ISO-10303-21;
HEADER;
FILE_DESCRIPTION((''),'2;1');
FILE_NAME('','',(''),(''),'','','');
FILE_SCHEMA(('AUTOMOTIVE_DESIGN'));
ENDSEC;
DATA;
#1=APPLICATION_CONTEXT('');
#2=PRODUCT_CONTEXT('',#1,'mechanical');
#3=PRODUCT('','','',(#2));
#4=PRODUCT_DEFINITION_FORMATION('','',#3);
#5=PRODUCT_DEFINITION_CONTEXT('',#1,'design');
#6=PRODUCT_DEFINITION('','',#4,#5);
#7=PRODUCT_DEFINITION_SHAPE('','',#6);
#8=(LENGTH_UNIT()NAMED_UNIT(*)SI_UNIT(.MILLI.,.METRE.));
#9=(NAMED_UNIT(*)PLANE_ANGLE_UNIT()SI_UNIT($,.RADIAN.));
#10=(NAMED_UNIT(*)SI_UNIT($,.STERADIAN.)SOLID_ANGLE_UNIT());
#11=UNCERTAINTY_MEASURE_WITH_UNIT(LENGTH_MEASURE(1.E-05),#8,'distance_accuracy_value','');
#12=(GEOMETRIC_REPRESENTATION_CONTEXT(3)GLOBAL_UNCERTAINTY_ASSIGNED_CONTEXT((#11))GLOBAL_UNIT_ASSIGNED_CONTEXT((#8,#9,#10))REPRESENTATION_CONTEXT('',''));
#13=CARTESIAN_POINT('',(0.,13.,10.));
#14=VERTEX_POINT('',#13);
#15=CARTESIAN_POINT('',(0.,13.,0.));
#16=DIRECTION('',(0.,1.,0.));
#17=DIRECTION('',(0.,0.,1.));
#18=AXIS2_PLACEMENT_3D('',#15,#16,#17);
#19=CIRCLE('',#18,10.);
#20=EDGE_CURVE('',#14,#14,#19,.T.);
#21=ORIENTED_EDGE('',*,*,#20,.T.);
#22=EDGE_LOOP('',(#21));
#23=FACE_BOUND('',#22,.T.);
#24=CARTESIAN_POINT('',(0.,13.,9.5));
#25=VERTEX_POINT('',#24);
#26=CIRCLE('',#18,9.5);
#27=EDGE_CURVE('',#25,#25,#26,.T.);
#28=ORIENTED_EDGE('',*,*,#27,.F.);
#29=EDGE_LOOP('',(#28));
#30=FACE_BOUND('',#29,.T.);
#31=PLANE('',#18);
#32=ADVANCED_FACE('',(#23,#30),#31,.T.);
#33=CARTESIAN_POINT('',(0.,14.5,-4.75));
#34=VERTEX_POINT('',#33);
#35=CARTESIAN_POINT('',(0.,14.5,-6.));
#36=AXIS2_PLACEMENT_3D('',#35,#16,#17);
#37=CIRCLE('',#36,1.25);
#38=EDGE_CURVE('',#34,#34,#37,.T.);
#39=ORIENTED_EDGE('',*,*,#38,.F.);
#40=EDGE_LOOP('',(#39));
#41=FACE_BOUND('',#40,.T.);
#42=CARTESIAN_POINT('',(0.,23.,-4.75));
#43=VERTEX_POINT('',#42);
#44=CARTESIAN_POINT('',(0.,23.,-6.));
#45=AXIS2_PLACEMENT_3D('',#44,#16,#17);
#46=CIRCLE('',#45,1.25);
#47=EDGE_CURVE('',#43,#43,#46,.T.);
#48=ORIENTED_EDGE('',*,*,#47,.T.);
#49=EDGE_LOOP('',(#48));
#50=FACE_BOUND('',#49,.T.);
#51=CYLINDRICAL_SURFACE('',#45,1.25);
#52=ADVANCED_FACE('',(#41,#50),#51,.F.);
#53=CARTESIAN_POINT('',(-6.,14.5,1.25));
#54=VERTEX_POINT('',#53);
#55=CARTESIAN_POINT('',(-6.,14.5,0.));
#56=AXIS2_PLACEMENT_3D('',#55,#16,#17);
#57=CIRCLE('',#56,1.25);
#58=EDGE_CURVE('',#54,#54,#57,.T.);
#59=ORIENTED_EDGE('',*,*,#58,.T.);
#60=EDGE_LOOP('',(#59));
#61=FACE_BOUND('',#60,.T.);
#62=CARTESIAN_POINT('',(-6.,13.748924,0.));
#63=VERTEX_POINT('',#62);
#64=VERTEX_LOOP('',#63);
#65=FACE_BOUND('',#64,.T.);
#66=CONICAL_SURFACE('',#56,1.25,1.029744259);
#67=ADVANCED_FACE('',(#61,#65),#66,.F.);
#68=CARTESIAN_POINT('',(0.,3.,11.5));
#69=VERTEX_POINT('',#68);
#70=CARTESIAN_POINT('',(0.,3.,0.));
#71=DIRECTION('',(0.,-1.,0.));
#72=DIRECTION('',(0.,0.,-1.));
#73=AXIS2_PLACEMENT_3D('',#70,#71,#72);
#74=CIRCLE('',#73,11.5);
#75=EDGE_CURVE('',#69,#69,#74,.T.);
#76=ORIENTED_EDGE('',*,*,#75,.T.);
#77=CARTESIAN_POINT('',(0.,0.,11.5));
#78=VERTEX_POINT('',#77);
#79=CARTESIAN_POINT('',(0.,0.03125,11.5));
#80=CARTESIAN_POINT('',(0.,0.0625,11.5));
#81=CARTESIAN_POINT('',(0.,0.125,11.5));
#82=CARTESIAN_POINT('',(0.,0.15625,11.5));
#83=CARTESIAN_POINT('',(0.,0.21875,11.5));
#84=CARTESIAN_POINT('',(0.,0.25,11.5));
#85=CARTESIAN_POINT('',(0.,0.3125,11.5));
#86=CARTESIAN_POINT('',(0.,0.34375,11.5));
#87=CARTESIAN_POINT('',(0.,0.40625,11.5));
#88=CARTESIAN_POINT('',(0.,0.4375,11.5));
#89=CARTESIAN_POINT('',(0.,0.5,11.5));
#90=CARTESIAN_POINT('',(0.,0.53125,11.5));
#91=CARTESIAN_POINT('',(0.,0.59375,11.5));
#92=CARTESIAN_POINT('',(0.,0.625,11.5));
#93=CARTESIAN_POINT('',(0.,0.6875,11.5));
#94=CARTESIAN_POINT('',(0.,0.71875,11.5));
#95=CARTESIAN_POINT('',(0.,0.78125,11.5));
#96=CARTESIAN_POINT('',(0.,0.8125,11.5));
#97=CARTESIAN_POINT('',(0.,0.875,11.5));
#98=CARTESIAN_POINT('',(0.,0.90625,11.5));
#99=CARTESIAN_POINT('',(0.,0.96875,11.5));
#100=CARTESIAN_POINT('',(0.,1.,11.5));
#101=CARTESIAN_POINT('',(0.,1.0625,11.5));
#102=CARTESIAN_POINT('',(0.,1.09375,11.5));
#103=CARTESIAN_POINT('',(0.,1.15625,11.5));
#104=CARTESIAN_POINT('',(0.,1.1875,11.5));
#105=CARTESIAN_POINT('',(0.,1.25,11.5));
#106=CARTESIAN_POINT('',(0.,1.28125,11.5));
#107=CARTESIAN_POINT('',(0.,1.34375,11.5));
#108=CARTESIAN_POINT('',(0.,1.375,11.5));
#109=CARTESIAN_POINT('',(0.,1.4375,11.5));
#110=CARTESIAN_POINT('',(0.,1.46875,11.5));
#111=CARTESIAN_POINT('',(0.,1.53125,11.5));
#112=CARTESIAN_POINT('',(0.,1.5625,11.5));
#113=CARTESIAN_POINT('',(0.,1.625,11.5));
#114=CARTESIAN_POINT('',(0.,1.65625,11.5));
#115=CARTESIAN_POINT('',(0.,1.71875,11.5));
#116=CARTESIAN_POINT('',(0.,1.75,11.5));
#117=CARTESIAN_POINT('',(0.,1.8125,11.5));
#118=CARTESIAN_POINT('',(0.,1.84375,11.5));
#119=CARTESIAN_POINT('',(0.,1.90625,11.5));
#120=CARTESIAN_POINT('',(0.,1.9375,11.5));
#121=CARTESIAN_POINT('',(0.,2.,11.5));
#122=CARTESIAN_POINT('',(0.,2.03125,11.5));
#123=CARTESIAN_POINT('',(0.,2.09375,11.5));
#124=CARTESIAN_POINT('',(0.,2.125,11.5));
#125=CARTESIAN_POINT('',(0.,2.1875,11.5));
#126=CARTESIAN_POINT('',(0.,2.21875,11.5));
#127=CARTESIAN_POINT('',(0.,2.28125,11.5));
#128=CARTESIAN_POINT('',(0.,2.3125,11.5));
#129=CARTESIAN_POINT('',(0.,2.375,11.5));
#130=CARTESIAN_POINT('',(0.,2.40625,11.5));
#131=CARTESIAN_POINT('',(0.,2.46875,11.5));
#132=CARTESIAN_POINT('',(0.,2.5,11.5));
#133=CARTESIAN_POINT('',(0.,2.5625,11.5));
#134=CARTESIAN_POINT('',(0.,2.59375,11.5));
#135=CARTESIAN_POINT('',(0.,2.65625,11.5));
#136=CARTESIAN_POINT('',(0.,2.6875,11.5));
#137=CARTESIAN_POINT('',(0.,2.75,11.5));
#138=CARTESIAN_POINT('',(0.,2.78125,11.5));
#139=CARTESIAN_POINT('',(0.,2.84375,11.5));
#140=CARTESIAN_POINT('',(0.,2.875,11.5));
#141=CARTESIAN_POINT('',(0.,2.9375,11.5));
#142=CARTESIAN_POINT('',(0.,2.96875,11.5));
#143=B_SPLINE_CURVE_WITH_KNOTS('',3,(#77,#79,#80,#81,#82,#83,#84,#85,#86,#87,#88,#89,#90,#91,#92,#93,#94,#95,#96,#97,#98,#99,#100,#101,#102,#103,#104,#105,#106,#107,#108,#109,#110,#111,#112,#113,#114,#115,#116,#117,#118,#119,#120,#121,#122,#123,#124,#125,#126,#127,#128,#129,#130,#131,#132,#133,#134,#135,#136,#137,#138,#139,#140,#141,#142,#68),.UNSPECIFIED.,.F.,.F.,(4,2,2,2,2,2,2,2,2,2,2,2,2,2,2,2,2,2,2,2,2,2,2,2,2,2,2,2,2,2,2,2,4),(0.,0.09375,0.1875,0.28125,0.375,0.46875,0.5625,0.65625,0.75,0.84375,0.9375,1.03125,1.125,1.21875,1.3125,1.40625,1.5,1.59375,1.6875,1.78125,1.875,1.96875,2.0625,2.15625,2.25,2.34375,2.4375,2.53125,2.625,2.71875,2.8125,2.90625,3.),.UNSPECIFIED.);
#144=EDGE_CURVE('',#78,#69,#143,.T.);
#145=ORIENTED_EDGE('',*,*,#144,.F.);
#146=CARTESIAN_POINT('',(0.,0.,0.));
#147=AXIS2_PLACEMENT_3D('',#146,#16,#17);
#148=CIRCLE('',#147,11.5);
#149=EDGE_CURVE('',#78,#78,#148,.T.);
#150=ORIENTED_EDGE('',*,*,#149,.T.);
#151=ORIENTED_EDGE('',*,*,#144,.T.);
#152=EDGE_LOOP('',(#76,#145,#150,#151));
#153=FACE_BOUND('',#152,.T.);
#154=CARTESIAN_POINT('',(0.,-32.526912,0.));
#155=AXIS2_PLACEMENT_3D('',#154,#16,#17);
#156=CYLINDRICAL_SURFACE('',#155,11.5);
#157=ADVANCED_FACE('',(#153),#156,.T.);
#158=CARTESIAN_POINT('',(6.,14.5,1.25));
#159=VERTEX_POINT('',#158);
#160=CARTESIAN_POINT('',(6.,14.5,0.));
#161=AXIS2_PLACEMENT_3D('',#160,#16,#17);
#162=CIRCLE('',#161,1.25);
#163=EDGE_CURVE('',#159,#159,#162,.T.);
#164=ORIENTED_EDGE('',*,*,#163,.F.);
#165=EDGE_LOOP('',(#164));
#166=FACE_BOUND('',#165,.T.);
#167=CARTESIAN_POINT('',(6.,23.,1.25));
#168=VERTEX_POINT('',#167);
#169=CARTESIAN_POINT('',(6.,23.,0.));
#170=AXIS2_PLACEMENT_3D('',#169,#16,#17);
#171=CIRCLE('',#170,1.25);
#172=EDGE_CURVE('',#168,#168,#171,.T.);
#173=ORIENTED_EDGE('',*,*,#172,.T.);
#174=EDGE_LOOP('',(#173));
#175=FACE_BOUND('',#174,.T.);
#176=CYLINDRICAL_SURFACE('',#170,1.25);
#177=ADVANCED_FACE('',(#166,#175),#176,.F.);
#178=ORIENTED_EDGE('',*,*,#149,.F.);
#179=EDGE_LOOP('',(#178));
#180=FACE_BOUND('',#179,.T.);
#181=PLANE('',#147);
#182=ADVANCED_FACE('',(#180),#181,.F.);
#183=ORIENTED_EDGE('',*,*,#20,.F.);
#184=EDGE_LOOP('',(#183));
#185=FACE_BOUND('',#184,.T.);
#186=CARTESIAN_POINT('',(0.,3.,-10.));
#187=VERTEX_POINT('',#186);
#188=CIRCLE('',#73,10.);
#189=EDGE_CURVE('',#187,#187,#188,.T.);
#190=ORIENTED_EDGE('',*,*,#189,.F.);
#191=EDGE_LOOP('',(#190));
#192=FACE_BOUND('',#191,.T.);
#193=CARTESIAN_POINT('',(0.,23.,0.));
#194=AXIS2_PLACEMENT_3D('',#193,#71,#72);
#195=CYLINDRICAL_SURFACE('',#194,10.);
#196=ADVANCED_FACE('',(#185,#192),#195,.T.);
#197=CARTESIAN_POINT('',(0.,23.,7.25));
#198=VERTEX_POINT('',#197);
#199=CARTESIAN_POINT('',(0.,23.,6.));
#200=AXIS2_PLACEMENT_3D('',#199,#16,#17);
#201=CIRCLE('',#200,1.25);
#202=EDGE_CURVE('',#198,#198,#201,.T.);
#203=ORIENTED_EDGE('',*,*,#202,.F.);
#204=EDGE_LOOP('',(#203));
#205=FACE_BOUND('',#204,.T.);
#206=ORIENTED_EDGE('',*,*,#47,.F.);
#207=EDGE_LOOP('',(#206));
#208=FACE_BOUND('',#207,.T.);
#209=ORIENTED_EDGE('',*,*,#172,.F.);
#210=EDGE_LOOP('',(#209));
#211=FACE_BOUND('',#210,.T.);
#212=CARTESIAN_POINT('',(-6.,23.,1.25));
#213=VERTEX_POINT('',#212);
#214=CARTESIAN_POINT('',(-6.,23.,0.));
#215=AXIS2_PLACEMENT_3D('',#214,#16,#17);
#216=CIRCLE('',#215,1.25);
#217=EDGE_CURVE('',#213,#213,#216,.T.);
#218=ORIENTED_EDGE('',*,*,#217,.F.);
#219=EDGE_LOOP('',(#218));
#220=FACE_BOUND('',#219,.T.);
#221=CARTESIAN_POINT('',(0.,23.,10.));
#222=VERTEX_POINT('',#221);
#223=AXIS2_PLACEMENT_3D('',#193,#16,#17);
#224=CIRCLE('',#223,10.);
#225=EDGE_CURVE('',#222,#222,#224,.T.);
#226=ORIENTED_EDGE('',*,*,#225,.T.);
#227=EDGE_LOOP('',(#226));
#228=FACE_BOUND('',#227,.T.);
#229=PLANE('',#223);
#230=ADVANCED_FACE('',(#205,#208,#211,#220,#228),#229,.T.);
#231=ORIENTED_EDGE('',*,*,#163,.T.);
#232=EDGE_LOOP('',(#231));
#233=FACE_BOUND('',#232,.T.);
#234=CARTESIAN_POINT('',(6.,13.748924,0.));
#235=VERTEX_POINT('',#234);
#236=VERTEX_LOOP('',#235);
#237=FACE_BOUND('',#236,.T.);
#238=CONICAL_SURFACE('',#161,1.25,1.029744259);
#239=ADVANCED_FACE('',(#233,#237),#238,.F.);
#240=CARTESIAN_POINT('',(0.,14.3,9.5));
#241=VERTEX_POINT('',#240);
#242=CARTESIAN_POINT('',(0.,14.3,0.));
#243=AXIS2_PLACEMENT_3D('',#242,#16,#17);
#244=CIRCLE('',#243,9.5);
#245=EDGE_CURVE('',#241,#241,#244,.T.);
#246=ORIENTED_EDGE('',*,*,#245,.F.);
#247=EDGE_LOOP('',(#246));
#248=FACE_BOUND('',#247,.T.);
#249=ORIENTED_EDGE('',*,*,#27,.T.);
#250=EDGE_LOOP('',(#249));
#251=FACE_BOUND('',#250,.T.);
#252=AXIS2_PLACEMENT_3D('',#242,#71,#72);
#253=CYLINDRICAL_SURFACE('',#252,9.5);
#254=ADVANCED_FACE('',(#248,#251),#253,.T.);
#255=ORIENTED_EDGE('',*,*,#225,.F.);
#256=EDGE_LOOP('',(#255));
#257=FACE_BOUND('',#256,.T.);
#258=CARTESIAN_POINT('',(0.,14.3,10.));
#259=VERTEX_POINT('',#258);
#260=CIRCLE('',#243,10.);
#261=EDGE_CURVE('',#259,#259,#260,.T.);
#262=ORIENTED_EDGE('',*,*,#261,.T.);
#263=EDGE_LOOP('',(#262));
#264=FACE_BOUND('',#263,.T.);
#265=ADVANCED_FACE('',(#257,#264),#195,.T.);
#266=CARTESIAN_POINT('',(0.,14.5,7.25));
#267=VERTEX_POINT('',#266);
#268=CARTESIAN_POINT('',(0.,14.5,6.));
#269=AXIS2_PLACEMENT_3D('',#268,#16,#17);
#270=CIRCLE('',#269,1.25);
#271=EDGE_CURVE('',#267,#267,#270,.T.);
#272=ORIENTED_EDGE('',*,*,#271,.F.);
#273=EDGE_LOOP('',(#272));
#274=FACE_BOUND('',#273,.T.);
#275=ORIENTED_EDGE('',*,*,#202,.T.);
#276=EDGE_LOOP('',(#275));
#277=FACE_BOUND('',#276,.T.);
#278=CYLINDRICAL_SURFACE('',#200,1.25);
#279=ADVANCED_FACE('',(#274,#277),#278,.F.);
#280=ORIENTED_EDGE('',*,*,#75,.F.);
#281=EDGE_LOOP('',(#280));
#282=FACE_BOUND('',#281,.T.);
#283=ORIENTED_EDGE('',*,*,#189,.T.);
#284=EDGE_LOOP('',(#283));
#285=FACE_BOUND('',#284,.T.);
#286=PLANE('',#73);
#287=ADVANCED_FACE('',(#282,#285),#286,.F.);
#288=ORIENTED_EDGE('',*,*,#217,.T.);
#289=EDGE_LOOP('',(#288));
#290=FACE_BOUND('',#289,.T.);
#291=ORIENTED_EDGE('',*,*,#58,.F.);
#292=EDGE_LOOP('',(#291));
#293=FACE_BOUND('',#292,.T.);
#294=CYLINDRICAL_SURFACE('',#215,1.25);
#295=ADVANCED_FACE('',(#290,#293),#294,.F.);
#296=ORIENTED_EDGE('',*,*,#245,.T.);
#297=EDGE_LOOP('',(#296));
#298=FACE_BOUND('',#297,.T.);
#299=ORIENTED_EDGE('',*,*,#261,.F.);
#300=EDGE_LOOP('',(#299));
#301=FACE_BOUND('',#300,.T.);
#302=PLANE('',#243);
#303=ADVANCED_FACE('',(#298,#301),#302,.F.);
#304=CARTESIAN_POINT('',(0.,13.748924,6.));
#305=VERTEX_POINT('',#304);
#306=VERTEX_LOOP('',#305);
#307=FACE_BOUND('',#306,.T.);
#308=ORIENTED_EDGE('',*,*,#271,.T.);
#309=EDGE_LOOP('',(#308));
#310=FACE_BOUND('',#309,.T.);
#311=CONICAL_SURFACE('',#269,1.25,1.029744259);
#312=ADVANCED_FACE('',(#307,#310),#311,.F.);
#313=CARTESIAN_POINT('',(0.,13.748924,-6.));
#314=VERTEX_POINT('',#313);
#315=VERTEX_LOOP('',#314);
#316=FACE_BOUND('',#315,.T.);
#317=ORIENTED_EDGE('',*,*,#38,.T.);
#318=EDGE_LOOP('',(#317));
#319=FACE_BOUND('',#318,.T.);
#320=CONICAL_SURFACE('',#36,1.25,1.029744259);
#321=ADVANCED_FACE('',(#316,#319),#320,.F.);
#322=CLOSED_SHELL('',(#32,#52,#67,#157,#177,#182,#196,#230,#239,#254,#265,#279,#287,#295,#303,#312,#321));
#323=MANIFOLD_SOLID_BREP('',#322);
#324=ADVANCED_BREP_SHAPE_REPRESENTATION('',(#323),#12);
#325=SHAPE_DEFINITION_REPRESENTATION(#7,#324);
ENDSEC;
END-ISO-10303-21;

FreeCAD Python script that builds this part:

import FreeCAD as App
import Part
import Sketcher
Q = App.Units.Quantity

doc = App.newDocument("Part")
params = doc.addObject("Spreadsheet::Sheet", "Params")
for row, (alias, value) in enumerate([
    ("sketch1_diameter", "20 mm"),
    ("pad1_length", "23 mm"),
    ("sketch2_diameter", "2.5 mm"),
    ("hole_diameter", "2.5 mm"),
    ("hole_depth", "8.5 mm"),
    ("sketch3_diameter", "23 mm"),
    ("sketch3_diameter2", "20 mm"),
    ("pad2_length", "3 mm"),
    ("sketch4_diameter", "20 mm"),
    ("sketch4_diameter2", "19 mm"),
    ("pocket1_length", "1.3 mm"),
], start=1):
    params.set(f"A{row}", alias)
    params.set(f"B{row}", "=" + value)
    params.setAlias(f"B{row}", alias)

body = doc.addObject("PartDesign::Body", "Body")

sketch1 = body.newObject("Sketcher::SketchObject", "Sketch")
sketch1.AttachmentSupport = (doc.getObject("XZ_Plane"), [""])
sketch1.MapMode = "FlatFace"
sketch1.addGeometry(Part.Circle(App.Vector(0, 0, 0), App.Vector(0, 0, 1), 10), False)
sketch1.addConstraint([
    Sketcher.Constraint("Coincident", 0, 3, -1, 1),
    Sketcher.Constraint("Diameter", 0, Q("20 mm")),
])
sketch1.setExpression("Constraints[1]", "Params.sketch1_diameter")
pad1 = body.newObject("PartDesign::Pad", "Pad")
pad1.Profile = sketch1
pad1.setExpression("Length", "Params.pad1_length")
pad1.Reversed = True

sketch2 = body.newObject("Sketcher::SketchObject", "Sketch001")
sketch2.AttachmentSupport = (doc.getObject("XZ_Plane"), [""])
sketch2.MapMode = "FlatFace"
sketch2.AttachmentOffset = App.Placement(App.Vector(0, 0, -23), App.Rotation())
sketch2.addGeometry([
    Part.Circle(App.Vector(0, -6, 0), App.Vector(0, 0, 1), 1.2),
    Part.Circle(App.Vector(6, 0, 0), App.Vector(0, 0, 1), 1.2),
    Part.Circle(App.Vector(0, 6, 0), App.Vector(0, 0, 1), 1.2),
    Part.Circle(App.Vector(-6, 0, 0), App.Vector(0, 0, 1), 1.2),
], False)
sketch2.addConstraint([
    Sketcher.Constraint("Equal", 0, 1),
    Sketcher.Constraint("Equal", 1, 2),
    Sketcher.Constraint("Equal", 2, 3),
    Sketcher.Constraint("Symmetric", 0, 3, 2, 3, -1, 1),
    Sketcher.Constraint("Symmetric", 1, 3, 3, 3, -1, 1),
    Sketcher.Constraint("PointOnObject", 0, 3, -2),
    Sketcher.Constraint("PointOnObject", 1, 3, -1),
    Sketcher.Constraint("Diameter", 0, Q("2.5 mm")),
    Sketcher.Constraint("DistanceY", 0, 3, -1, 1, Q("6 mm")),
    Sketcher.Constraint("DistanceX", -1, 1, 1, 3, Q("6 mm")),
])
sketch2.setExpression("Constraints[7]", "Params.sketch2_diameter")
doc.recompute()
hole = body.newObject("PartDesign::Hole", "Hole")
hole.Profile = sketch2
hole.ThreadType = "None"
hole.setExpression("Diameter", "Params.hole_diameter")
hole.DepthType = "Dimension"
hole.setExpression("Depth", "Params.hole_depth")
hole.DrillPoint = "Angled"
hole.DrillPointAngle = 118
hole.Reversed = True

sketch3 = body.newObject("Sketcher::SketchObject", "Sketch002")
sketch3.AttachmentSupport = (doc.getObject("XZ_Plane"), [""])
sketch3.MapMode = "FlatFace"
sketch3.addGeometry([
    Part.Circle(App.Vector(0, 0, 0), App.Vector(0, 0, 1), 12),
    Part.Circle(App.Vector(0, 0, 0), App.Vector(0, 0, 1), 10),
], False)
sketch3.addConstraint([
    Sketcher.Constraint("Coincident", 0, 3, -1, 1),
    Sketcher.Constraint("Coincident", 1, 3, -1, 1),
    Sketcher.Constraint("Diameter", 0, Q("23 mm")),
    Sketcher.Constraint("Diameter", 1, Q("20 mm")),
])
sketch3.setExpression("Constraints[2]", "Params.sketch3_diameter")
sketch3.setExpression("Constraints[3]", "Params.sketch3_diameter2")
pad2 = body.newObject("PartDesign::Pad", "Pad001")
pad2.Profile = sketch3
pad2.setExpression("Length", "Params.pad2_length")
pad2.Reversed = True

sketch4 = body.newObject("Sketcher::SketchObject", "Sketch003")
sketch4.AttachmentSupport = (doc.getObject("XZ_Plane"), [""])
sketch4.MapMode = "FlatFace"
sketch4.AttachmentOffset = App.Placement(App.Vector(0, 0, -13), App.Rotation())
sketch4.addGeometry([
    Part.Circle(App.Vector(0, 0, 0), App.Vector(0, 0, 1), 10),
    Part.Circle(App.Vector(0, 0, 0), App.Vector(0, 0, 1), 10),
], False)
sketch4.addConstraint([
    Sketcher.Constraint("Coincident", 0, 3, -1, 1),
    Sketcher.Constraint("Coincident", 1, 3, -1, 1),
    Sketcher.Constraint("Diameter", 0, Q("20 mm")),
    Sketcher.Constraint("Diameter", 1, Q("19 mm")),
])
sketch4.setExpression("Constraints[2]", "Params.sketch4_diameter")
sketch4.setExpression("Constraints[3]", "Params.sketch4_diameter2")
pocket1 = body.newObject("PartDesign::Pocket", "Pocket")
pocket1.Profile = sketch4
pocket1.setExpression("Length", "Params.pocket1_length")

doc.recompute()
